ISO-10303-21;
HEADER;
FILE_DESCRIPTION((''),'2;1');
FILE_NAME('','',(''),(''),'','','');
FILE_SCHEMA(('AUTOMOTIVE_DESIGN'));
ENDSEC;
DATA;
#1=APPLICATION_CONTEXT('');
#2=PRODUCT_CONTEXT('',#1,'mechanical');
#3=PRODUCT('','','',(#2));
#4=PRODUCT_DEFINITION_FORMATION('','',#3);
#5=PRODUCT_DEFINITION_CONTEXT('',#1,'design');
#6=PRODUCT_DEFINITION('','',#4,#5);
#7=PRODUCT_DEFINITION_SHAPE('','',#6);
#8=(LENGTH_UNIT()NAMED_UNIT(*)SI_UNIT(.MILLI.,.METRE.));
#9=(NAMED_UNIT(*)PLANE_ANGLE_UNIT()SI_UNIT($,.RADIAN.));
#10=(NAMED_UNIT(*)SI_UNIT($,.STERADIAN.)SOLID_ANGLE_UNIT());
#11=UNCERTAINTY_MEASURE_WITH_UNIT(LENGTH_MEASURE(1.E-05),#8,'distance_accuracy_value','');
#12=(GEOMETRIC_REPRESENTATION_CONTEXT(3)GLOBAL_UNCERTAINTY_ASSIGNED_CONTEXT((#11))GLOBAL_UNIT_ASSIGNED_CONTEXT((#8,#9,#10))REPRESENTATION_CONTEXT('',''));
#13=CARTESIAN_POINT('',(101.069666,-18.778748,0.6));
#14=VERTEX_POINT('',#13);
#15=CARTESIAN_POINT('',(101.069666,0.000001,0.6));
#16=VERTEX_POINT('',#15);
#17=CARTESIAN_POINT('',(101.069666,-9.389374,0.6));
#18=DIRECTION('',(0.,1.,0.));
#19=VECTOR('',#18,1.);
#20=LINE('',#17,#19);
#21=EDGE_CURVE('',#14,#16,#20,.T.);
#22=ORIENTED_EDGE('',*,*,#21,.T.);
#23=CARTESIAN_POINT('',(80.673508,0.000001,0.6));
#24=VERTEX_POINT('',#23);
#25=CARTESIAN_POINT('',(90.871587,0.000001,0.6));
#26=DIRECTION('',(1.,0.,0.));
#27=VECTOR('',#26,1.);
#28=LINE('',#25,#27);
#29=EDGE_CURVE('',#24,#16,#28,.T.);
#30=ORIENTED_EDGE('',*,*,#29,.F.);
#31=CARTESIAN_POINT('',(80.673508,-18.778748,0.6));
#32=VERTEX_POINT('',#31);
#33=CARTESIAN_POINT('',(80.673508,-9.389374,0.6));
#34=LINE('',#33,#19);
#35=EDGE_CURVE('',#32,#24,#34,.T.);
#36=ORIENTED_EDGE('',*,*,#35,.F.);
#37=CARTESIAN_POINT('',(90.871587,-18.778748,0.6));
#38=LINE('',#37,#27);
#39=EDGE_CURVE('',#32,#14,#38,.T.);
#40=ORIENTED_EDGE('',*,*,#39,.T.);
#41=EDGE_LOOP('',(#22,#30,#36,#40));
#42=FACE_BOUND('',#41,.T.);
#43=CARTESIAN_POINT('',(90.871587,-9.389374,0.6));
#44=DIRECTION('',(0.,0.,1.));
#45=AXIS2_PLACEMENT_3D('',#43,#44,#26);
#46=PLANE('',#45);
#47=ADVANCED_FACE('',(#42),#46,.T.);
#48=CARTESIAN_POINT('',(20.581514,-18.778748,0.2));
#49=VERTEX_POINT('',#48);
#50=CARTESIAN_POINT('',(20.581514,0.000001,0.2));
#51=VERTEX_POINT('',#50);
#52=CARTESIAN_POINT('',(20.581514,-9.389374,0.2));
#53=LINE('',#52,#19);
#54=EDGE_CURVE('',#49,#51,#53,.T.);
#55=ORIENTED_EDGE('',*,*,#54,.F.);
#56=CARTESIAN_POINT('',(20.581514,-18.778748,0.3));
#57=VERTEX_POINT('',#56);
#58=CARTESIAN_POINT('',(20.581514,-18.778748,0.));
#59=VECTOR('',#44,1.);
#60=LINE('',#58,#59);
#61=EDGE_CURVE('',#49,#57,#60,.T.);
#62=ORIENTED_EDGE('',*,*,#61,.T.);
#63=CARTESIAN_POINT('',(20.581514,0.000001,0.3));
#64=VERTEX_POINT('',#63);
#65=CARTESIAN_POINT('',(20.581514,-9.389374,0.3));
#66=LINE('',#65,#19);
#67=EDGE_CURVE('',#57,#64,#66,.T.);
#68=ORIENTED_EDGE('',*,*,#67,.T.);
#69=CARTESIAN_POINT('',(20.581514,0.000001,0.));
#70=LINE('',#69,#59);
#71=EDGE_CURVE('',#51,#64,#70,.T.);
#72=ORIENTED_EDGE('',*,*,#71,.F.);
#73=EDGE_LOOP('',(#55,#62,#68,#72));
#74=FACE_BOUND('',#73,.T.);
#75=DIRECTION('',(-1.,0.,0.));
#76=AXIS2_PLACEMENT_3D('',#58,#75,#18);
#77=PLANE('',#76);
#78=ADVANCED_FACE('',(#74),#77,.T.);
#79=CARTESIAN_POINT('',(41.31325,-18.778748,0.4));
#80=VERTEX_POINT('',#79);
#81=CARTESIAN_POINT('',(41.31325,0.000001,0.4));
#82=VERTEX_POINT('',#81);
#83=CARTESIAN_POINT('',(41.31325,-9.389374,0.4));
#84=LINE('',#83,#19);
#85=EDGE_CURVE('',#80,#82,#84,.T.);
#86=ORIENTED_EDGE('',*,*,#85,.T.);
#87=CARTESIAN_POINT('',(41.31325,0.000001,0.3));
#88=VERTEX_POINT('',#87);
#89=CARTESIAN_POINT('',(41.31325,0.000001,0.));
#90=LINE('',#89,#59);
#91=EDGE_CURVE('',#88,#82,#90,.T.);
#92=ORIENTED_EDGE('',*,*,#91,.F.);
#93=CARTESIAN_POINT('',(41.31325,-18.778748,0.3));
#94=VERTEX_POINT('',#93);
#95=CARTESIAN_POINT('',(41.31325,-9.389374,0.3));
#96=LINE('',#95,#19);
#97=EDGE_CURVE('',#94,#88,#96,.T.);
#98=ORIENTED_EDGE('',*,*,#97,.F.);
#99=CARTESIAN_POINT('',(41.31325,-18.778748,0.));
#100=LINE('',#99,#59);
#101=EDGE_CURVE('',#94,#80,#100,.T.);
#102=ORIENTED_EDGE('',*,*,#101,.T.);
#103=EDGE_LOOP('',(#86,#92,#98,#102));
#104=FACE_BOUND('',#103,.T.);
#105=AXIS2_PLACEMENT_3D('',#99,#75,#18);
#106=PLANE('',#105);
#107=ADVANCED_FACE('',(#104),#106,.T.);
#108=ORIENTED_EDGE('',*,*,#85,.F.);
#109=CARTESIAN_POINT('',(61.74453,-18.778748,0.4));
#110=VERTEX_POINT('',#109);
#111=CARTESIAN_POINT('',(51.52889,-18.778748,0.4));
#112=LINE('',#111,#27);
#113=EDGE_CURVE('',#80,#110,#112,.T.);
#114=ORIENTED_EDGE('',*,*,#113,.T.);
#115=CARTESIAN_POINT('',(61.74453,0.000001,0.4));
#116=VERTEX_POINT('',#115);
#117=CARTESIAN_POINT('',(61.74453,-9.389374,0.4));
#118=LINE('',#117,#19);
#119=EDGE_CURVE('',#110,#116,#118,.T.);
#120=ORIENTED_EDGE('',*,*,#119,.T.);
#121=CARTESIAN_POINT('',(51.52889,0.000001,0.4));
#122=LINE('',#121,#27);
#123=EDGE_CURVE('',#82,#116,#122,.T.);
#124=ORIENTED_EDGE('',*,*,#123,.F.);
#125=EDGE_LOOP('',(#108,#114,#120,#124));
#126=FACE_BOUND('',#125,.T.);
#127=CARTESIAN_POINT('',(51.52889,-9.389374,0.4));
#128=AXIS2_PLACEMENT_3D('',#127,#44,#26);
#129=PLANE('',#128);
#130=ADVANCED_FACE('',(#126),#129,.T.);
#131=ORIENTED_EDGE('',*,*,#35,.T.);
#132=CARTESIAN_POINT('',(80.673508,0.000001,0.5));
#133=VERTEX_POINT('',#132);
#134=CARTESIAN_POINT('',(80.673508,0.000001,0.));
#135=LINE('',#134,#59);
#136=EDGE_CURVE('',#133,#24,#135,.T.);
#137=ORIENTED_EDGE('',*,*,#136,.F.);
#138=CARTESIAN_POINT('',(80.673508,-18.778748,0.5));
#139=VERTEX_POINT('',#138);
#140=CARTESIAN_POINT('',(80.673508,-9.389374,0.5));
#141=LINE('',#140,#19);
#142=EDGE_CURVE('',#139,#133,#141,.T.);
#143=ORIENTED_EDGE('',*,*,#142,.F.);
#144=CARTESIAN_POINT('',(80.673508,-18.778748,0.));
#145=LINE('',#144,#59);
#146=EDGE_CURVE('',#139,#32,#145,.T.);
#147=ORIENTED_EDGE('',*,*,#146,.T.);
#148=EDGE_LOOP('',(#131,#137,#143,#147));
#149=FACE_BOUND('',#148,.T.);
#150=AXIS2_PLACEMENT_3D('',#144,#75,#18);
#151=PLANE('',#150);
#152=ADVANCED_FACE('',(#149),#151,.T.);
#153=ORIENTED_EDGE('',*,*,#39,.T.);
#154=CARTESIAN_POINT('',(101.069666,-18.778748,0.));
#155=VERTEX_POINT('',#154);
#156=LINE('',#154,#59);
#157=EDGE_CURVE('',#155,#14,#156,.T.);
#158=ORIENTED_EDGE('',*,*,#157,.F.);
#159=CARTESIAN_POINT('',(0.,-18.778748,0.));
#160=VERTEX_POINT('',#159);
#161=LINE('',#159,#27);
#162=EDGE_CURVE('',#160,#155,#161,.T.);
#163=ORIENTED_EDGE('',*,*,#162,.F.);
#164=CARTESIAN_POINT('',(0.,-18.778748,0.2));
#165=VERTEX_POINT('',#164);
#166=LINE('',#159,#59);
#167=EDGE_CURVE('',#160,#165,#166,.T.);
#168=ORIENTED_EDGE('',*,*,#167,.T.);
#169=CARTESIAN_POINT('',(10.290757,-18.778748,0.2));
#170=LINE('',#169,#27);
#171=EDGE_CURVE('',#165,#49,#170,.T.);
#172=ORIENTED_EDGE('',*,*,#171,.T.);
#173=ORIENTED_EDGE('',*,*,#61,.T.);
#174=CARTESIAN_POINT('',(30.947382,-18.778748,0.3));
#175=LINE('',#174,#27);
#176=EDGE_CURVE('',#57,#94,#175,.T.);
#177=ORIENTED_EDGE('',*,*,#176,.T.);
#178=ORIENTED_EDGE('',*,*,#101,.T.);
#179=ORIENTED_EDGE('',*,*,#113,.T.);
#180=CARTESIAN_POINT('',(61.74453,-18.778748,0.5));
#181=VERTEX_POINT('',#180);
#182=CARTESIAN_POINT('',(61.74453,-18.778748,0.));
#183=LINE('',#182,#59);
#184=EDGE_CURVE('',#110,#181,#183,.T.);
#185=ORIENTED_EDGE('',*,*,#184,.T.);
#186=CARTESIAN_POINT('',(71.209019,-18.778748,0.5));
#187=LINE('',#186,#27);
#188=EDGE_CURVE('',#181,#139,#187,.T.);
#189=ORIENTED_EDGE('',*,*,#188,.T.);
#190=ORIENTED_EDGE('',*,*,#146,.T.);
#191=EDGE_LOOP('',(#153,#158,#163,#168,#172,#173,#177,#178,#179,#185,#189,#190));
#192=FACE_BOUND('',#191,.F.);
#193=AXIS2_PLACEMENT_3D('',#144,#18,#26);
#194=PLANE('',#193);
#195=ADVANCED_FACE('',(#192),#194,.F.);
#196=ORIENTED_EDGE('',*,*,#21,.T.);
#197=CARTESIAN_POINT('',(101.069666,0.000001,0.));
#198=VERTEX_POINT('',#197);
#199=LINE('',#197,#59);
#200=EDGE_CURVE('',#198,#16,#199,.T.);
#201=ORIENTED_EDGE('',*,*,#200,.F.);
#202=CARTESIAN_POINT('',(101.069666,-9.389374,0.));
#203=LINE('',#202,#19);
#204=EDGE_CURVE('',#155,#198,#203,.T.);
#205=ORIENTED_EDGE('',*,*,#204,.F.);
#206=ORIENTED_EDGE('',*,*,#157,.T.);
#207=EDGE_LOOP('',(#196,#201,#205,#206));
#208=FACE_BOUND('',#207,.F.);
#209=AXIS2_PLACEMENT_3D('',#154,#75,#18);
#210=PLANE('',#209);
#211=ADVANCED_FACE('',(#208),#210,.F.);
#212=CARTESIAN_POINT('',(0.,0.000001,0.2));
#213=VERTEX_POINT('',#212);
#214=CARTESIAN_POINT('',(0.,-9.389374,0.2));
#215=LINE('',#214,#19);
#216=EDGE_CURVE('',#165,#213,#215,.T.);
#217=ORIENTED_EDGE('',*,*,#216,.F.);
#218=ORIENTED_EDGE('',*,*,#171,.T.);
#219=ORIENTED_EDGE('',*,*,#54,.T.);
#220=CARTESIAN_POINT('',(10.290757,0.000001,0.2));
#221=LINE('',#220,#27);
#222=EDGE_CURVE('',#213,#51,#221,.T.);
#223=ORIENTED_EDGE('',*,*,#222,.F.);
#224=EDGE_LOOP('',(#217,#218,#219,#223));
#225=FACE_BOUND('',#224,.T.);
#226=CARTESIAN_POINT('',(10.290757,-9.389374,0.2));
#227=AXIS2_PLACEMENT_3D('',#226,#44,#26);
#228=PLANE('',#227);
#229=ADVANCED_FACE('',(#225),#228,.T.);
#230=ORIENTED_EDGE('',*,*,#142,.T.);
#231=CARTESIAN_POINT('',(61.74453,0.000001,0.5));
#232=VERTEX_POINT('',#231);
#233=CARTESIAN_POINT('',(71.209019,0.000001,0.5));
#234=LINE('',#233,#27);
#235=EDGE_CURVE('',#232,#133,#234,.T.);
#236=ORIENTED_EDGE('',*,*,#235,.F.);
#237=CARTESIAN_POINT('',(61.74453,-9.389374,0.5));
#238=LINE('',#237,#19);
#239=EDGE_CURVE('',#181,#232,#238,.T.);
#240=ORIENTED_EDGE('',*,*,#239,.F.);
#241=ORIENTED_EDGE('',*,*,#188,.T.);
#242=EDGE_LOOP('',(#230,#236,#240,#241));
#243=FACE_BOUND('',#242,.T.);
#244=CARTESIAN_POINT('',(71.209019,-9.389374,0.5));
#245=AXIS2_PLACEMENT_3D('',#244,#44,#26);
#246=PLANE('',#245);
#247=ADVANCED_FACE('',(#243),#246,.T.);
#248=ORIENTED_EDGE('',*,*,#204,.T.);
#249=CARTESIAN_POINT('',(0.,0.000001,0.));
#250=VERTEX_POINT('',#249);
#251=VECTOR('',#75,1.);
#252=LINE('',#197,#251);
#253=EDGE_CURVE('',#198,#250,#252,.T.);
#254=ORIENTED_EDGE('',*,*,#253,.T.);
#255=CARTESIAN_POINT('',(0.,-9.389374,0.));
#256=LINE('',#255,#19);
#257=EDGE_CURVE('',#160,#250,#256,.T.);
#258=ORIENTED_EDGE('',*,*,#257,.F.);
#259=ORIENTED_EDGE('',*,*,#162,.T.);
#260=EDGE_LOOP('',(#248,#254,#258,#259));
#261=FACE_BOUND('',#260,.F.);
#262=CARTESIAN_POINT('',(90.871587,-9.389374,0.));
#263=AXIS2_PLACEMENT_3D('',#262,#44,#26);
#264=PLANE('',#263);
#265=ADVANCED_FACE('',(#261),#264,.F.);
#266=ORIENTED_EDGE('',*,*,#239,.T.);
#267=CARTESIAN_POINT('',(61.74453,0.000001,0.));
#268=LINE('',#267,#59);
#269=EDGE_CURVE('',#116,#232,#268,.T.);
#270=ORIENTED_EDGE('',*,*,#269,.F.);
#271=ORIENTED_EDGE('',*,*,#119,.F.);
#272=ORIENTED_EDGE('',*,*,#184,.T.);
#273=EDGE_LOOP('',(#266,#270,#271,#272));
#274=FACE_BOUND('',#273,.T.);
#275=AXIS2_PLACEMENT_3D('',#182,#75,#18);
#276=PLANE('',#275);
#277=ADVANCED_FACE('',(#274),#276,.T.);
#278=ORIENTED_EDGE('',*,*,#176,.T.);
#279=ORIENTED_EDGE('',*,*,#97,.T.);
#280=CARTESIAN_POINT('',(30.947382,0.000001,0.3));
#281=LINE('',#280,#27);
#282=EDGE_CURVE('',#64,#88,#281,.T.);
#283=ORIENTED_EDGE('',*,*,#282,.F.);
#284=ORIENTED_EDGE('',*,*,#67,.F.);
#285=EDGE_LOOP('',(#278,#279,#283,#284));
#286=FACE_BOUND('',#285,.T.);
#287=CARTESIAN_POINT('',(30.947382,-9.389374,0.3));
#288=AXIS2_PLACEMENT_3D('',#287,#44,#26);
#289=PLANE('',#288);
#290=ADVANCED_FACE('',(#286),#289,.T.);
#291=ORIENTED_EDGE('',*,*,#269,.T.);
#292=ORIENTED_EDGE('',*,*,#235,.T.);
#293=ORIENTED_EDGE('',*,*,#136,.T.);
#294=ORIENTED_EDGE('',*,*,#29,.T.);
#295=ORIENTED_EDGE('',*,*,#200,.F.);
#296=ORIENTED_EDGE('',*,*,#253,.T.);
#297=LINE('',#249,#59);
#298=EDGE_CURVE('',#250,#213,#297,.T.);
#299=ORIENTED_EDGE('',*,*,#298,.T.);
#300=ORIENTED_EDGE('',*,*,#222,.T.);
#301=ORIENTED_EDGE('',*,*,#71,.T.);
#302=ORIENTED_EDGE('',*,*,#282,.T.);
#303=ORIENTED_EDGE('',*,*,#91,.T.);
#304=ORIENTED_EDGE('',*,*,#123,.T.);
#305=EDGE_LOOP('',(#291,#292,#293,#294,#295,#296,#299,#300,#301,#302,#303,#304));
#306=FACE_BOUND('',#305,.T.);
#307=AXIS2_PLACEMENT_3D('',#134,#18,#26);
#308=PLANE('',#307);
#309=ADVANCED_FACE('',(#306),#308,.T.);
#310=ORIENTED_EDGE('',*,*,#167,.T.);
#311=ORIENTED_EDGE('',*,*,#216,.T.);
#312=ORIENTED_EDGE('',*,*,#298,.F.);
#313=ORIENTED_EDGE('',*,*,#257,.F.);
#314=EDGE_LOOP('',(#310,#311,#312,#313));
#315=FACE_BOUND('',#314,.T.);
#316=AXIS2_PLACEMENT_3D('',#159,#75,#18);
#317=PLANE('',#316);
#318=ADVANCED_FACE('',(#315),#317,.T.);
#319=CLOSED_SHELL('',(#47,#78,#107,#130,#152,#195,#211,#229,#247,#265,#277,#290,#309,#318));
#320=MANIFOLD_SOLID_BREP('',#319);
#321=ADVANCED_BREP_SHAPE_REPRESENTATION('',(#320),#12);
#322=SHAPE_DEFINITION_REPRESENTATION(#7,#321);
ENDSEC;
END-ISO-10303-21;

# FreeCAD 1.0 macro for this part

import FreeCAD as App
import Part
import Sketcher
from FreeCAD import Vector
Q = App.Units.Quantity

doc = App.newDocument("Part")
body = doc.addObject("PartDesign::Body", "Body")

# Sketch on XY plane
sketch1 = doc.addObject("Sketcher::SketchObject", "Sketch")
body.addObject(sketch1)
sketch1.AttachmentSupport = (doc.XY_Plane, [""])
sketch1.MapMode = "FlatFace"
sketch1.addGeometry([
    Part.LineSegment(Vector(0, 0, 0), Vector(0, -19, 0)),
    Part.LineSegment(Vector(0, -19, 0), Vector(21, -19, 0)),
    Part.LineSegment(Vector(21, -19, 0), Vector(21, 0, 0)),
    Part.LineSegment(Vector(21, 0, 0), Vector(0, 0, 0)),
], False)
sketch1.addConstraint([
    Sketcher.Constraint("Coincident", 0, 2, 1, 1),
    Sketcher.Constraint("Coincident", 1, 2, 2, 1),
    Sketcher.Constraint("Coincident", 2, 2, 3, 1),
    Sketcher.Constraint("Coincident", 3, 2, 0, 1),
    Sketcher.Constraint("Vertical", 0),
    Sketcher.Constraint("Horizontal", 1),
    Sketcher.Constraint("Vertical", 2),
    Sketcher.Constraint("Horizontal", 3),
    Sketcher.Constraint("Coincident", 3, 2, -1, 1),
    Sketcher.Constraint("DistanceY", 0, 2, 0, 1, Q("18.778749 mm")),
    Sketcher.Constraint("DistanceX", 1, 1, 1, 2, Q("20.581514 mm")),
])
pad1 = doc.addObject("PartDesign::Pad", "Pad")
body.addObject(pad1)
pad1.Profile = sketch1
pad1.Length = 0.2

# Sketch on XY plane
sketch2 = doc.addObject("Sketcher::SketchObject", "Sketch001")
body.addObject(sketch2)
sketch2.AttachmentSupport = (doc.XY_Plane, [""])
sketch2.MapMode = "FlatFace"
sketch2.addGeometry([
    Part.LineSegment(Vector(21, 0, 0), Vector(21, -19, 0)),
    Part.LineSegment(Vector(21, -19, 0), Vector(41, -19, 0)),
    Part.LineSegment(Vector(41, -19, 0), Vector(41, 0, 0)),
    Part.LineSegment(Vector(41, 0, 0), Vector(21, 0, 0)),
], False)
sketch2.addConstraint([
    Sketcher.Constraint("Coincident", 0, 2, 1, 1),
    Sketcher.Constraint("Coincident", 1, 2, 2, 1),
    Sketcher.Constraint("Coincident", 2, 2, 3, 1),
    Sketcher.Constraint("Coincident", 3, 2, 0, 1),
    Sketcher.Constraint("Vertical", 0),
    Sketcher.Constraint("Horizontal", 1),
    Sketcher.Constraint("Vertical", 2),
    Sketcher.Constraint("Horizontal", 3),
    Sketcher.Constraint("PointOnObject", 2, 2, -1),
    Sketcher.Constraint("DistanceY", 0, 2, 0, 1, Q("18.778749 mm")),
    Sketcher.Constraint("DistanceX", 1, 1, 1, 2, Q("20.731736 mm")),
    Sketcher.Constraint("DistanceX", -1, 1, 1, 2, Q("41.31325 mm")),
])
pad2 = doc.addObject("PartDesign::Pad", "Pad001")
body.addObject(pad2)
pad2.Profile = sketch2
pad2.Length = 0.3

# Sketch on XY plane
sketch3 = doc.addObject("Sketcher::SketchObject", "Sketch002")
body.addObject(sketch3)
sketch3.AttachmentSupport = (doc.XY_Plane, [""])
sketch3.MapMode = "FlatFace"
sketch3.addGeometry([
    Part.LineSegment(Vector(41, 0, 0), Vector(41, -19, 0)),
    Part.LineSegment(Vector(41, -19, 0), Vector(62, -19, 0)),
    Part.LineSegment(Vector(62, -19, 0), Vector(62, 0, 0)),
    Part.LineSegment(Vector(62, 0, 0), Vector(41, 0, 0)),
], False)
sketch3.addConstraint([
    Sketcher.Constraint("Coincident", 0, 2, 1, 1),
    Sketcher.Constraint("Coincident", 1, 2, 2, 1),
    Sketcher.Constraint("Coincident", 2, 2, 3, 1),
    Sketcher.Constraint("Coincident", 3, 2, 0, 1),
    Sketcher.Constraint("Vertical", 0),
    Sketcher.Constraint("Horizontal", 1),
    Sketcher.Constraint("Vertical", 2),
    Sketcher.Constraint("Horizontal", 3),
    Sketcher.Constraint("PointOnObject", 2, 2, -1),
    Sketcher.Constraint("DistanceX", 1, 1, 1, 2, Q("20.43128 mm")),
    Sketcher.Constraint("DistanceY", 0, 2, 0, 1, Q("18.778749 mm")),
    Sketcher.Constraint("DistanceX", -1, 1, 0, 2, Q("41.31325 mm")),
])
pad3 = doc.addObject("PartDesign::Pad", "Pad002")
body.addObject(pad3)
pad3.Profile = sketch3
pad3.Length = 0.4

# Sketch on XY plane
sketch4 = doc.addObject("Sketcher::SketchObject", "Sketch003")
body.addObject(sketch4)
sketch4.AttachmentSupport = (doc.XY_Plane, [""])
sketch4.MapMode = "FlatFace"
sketch4.addGeometry([
    Part.LineSegment(Vector(62, 0, 0), Vector(62, -19, 0)),
    Part.LineSegment(Vector(62, -19, 0), Vector(81, -19, 0)),
    Part.LineSegment(Vector(81, -19, 0), Vector(81, 0, 0)),
    Part.LineSegment(Vector(81, 0, 0), Vector(62, 0, 0)),
], False)
sketch4.addConstraint([
    Sketcher.Constraint("Coincident", 0, 2, 1, 1),
    Sketcher.Constraint("Coincident", 1, 2, 2, 1),
    Sketcher.Constraint("Coincident", 2, 2, 3, 1),
    Sketcher.Constraint("Coincident", 3, 2, 0, 1),
    Sketcher.Constraint("Vertical", 0),
    Sketcher.Constraint("Horizontal", 1),
    Sketcher.Constraint("Vertical", 2),
    Sketcher.Constraint("Horizontal", 3),
    Sketcher.Constraint("PointOnObject", 2, 2, -1),
    Sketcher.Constraint("DistanceX", 1, 1, 1, 2, Q("18.928978 mm")),
    Sketcher.Constraint("DistanceY", 0, 2, 0, 1, Q("18.778749 mm")),
    Sketcher.Constraint("DistanceX", -1, 1, 0, 2, Q("61.74453 mm")),
])
pad4 = doc.addObject("PartDesign::Pad", "Pad003")
body.addObject(pad4)
pad4.Profile = sketch4
pad4.Length = 0.5

# Sketch on XY plane
sketch5 = doc.addObject("Sketcher::SketchObject", "Sketch004")
body.addObject(sketch5)
sketch5.AttachmentSupport = (doc.XY_Plane, [""])
sketch5.MapMode = "FlatFace"
sketch5.addGeometry([
    Part.LineSegment(Vector(81, 0, 0), Vector(81, -19, 0)),
    Part.LineSegment(Vector(81, -19, 0), Vector(101, -19, 0)),
    Part.LineSegment(Vector(101, -19, 0), Vector(101, 0, 0)),
    Part.LineSegment(Vector(101, 0, 0), Vector(81, 0, 0)),
], False)
sketch5.addConstraint([
    Sketcher.Constraint("Coincident", 0, 2, 1, 1),
    Sketcher.Constraint("Coincident", 1, 2, 2, 1),
    Sketcher.Constraint("Coincident", 2, 2, 3, 1),
    Sketcher.Constraint("Coincident", 3, 2, 0, 1),
    Sketcher.Constraint("Vertical", 0),
    Sketcher.Constraint("Horizontal", 1),
    Sketcher.Constraint("Vertical", 2),
    Sketcher.Constraint("Horizontal", 3),
    Sketcher.Constraint("PointOnObject", 2, 2, -1),
    Sketcher.Constraint("DistanceX", 1, 1, 1, 2, Q("20.396158 mm")),
    Sketcher.Constraint("DistanceY", 0, 2, 0, 1, Q("18.778749 mm")),
    Sketcher.Constraint("DistanceX", -1, 1, 0, 2, Q("80.673508 mm")),
])
pad5 = doc.addObject("PartDesign::Pad", "Pad004")
body.addObject(pad5)
pad5.Profile = sketch5
pad5.Length = 0.6

doc.recompute()
